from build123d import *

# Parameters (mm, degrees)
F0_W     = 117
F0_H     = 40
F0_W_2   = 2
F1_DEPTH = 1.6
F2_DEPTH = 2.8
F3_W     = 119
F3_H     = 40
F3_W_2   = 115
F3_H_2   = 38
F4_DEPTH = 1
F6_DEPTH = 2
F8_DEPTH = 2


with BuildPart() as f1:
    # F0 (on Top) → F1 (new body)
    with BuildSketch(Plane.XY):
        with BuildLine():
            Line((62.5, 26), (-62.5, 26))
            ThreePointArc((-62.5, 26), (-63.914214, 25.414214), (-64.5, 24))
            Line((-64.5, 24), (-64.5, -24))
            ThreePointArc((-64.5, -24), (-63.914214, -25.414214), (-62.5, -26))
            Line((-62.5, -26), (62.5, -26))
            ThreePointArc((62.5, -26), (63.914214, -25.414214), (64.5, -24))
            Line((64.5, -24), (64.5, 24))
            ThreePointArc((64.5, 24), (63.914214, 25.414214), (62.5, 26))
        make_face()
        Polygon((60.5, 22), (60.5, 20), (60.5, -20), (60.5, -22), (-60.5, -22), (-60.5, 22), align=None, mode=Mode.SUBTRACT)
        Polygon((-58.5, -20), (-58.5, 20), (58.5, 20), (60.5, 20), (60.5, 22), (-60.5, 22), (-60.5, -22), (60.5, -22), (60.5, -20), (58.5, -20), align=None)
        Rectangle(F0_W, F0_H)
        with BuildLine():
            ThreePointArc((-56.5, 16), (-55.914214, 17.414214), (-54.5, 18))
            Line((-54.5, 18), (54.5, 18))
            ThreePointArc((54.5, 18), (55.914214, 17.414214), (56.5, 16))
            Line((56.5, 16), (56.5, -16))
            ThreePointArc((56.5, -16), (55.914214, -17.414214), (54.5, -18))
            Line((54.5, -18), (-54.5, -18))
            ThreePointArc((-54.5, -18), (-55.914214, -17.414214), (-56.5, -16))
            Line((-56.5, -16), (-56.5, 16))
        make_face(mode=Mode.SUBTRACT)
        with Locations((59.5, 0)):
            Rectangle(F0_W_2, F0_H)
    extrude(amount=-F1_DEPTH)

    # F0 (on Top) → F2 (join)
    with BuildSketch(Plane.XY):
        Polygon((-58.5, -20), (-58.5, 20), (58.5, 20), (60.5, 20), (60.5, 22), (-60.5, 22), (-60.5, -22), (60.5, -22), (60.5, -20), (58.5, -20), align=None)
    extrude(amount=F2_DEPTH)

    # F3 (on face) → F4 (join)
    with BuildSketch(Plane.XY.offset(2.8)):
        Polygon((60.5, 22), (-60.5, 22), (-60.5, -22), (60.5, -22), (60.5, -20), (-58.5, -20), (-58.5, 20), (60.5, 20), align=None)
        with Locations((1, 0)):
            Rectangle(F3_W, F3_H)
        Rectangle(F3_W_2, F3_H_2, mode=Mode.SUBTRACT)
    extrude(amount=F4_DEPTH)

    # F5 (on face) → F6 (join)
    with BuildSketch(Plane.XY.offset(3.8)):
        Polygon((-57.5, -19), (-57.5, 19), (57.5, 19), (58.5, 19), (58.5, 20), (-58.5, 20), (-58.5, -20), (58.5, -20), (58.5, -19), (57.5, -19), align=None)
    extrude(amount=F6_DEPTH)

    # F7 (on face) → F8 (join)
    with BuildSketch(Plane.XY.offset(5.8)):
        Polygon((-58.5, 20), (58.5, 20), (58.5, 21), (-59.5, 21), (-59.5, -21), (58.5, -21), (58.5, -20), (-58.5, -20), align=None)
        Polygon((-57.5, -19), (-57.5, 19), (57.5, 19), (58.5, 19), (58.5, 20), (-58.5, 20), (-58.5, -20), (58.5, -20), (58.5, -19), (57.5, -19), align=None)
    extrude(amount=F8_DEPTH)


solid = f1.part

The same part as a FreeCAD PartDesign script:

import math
import FreeCAD as App
import Part
import Sketcher

V = App.Vector

doc = App.newDocument("Part")
body = doc.addObject("PartDesign::Body", "Body")

sketch1 = body.newObject("Sketcher::SketchObject", "Sketch")
sketch1.AttachmentSupport = (doc.getObject("XY_Plane"), [""])
sketch1.MapMode = "FlatFace"
sketch1.addGeometry([
    Part.LineSegment(V(62.5, 26, 0), V(-62.5, 26, 0)),
    Part.ArcOfCircle(Part.Circle(V(-62.500001, 24.000001, 0), V(0, 0, 1), 1.999999), math.radians(89.999957), math.radians(180.000043)),
    Part.LineSegment(V(-64.5, 24, 0), V(-64.5, -24, 0)),
    Part.ArcOfCircle(Part.Circle(V(-62.500001, -24.000001, 0), V(0, 0, 1), 1.999999), math.radians(179.999957), math.radians(270.000043)),
    Part.LineSegment(V(-62.5, -26, 0), V(62.5, -26, 0)),
    Part.ArcOfCircle(Part.Circle(V(62.500001, -24.000001, 0), V(0, 0, 1), 1.999999), math.radians(-90.000043), math.radians(0.000043)),
    Part.LineSegment(V(64.5, -24, 0), V(64.5, 24, 0)),
    Part.ArcOfCircle(Part.Circle(V(62.500001, 24.000001, 0), V(0, 0, 1), 1.999999), math.radians(-0.000043), math.radians(90.000043)),
    Part.LineSegment(V(-56.5, -16, 0), V(-56.5, 16, 0)),
    Part.ArcOfCircle(Part.Circle(V(-54.500001, 16.000001, 0), V(0, 0, 1), 1.999999), math.radians(89.999957), math.radians(180.000043)),
    Part.LineSegment(V(-54.5, 18, 0), V(54.5, 18, 0)),
    Part.ArcOfCircle(Part.Circle(V(54.500001, 16.000001, 0), V(0, 0, 1), 1.999999), math.radians(-0.000043), math.radians(90.000043)),
    Part.LineSegment(V(56.5, 16, 0), V(56.5, -16, 0)),
    Part.ArcOfCircle(Part.Circle(V(54.500001, -16.000001, 0), V(0, 0, 1), 1.999999), math.radians(-90.000043), math.radians(0.000043)),
    Part.LineSegment(V(54.5, -18, 0), V(-54.5, -18, 0)),
    Part.ArcOfCircle(Part.Circle(V(-54.500001, -16.000001, 0), V(0, 0, 1), 1.999999), math.radians(179.999957), math.radians(270.000043)),
], False)
sketch1.addConstraint([
    Sketcher.Constraint("Tangent", 0, 2, 1, 1),
    Sketcher.Constraint("Tangent", 1, 2, 2, 1),
    Sketcher.Constraint("Tangent", 2, 2, 3, 1),
    Sketcher.Constraint("Tangent", 3, 2, 4, 1),
    Sketcher.Constraint("Tangent", 4, 2, 5, 1),
    Sketcher.Constraint("Tangent", 5, 2, 6, 1),
    Sketcher.Constraint("Tangent", 6, 2, 7, 1),
    Sketcher.Constraint("Tangent", 7, 2, 0, 1),
    Sketcher.Constraint("Tangent", 8, 2, 9, 2),
    Sketcher.Constraint("Tangent", 9, 1, 10, 1),
    Sketcher.Constraint("Tangent", 10, 2, 11, 2),
    Sketcher.Constraint("Tangent", 11, 1, 12, 1),
    Sketcher.Constraint("Tangent", 12, 2, 13, 2),
    Sketcher.Constraint("Tangent", 13, 1, 14, 1),
    Sketcher.Constraint("Tangent", 14, 2, 15, 2),
    Sketcher.Constraint("Tangent", 15, 1, 8, 1),
    Sketcher.Constraint("Horizontal", 0),
    Sketcher.Constraint("Vertical", 2),
    Sketcher.Constraint("Horizontal", 4),
    Sketcher.Constraint("Vertical", 6),
    Sketcher.Constraint("Vertical", 8),
    Sketcher.Constraint("Horizontal", 10),
    Sketcher.Constraint("Vertical", 12),
    Sketcher.Constraint("Horizontal", 14),
    Sketcher.Constraint("Equal", 1, 3),
    Sketcher.Constraint("Equal", 3, 5),
    Sketcher.Constraint("Equal", 5, 7),
    Sketcher.Constraint("Equal", 7, 9),
    Sketcher.Constraint("Equal", 9, 11),
    Sketcher.Constraint("Equal", 11, 13),
    Sketcher.Constraint("Equal", 13, 15),
    Sketcher.Constraint("Symmetric", 1, 3, 5, 3, -1, 1),
    Sketcher.Constraint("Symmetric", 9, 3, 13, 3, -1, 1),
    Sketcher.Constraint("Radius", 1, 1.999999),
    Sketcher.Constraint("DistanceX", 0, 2, 0, 1, 125.0),
    Sketcher.Constraint("DistanceX", 10, 1, 10, 2, 109.0),
    Sketcher.Constraint("DistanceY", 2, 2, 2, 1, 48.0),
    Sketcher.Constraint("DistanceY", 8, 1, 8, 2, 32.0),
])
pad1 = body.newObject("PartDesign::Pad", "Pad")
pad1.Profile = sketch1
pad1.Length = 1.6
pad1.Reversed = True

sketch2 = body.newObject("Sketcher::SketchObject", "Sketch001")
sketch2.AttachmentSupport = (doc.getObject("XY_Plane"), [""])
sketch2.MapMode = "FlatFace"
sketch2.addGeometry([
    Part.LineSegment(V(-58.5, -20, 0), V(-58.5, 20, 0)),
    Part.LineSegment(V(-58.5, 20, 0), V(60.5, 20, 0)),
    Part.LineSegment(V(60.5, 20, 0), V(60.5, 22, 0)),
    Part.LineSegment(V(60.5, 22, 0), V(-60.5, 22, 0)),
    Part.LineSegment(V(-60.5, 22, 0), V(-60.5, -22, 0)),
    Part.LineSegment(V(-60.5, -22, 0), V(60.5, -22, 0)),
    Part.LineSegment(V(60.5, -22, 0), V(60.5, -20, 0)),
    Part.LineSegment(V(60.5, -20, 0), V(-58.5, -20, 0)),
], False)
sketch2.addConstraint([
    Sketcher.Constraint("Coincident", 0, 2, 1, 1),
    Sketcher.Constraint("Coincident", 1, 2, 2, 1),
    Sketcher.Constraint("Coincident", 2, 2, 3, 1),
    Sketcher.Constraint("Coincident", 3, 2, 4, 1),
    Sketcher.Constraint("Coincident", 4, 2, 5, 1),
    Sketcher.Constraint("Coincident", 5, 2, 6, 1),
    Sketcher.Constraint("Coincident", 6, 2, 7, 1),
    Sketcher.Constraint("Coincident", 7, 2, 0, 1),
    Sketcher.Constraint("Vertical", 0),
    Sketcher.Constraint("Horizontal", 1),
    Sketcher.Constraint("Vertical", 2),
    Sketcher.Constraint("Horizontal", 3),
    Sketcher.Constraint("Vertical", 4),
    Sketcher.Constraint("Horizontal", 5),
    Sketcher.Constraint("Vertical", 6),
    Sketcher.Constraint("Horizontal", 7),
    Sketcher.Constraint("Symmetric", 2, 2, 4, 2, -1, 1),
    Sketcher.Constraint("Symmetric", 1, 2, 6, 2, -1),
    Sketcher.Constraint("DistanceX", 1, 1, 1, 2, 119.0),
    Sketcher.Constraint("DistanceX", 3, 2, 3, 1, 121.0),
    Sketcher.Constraint("DistanceY", 0, 1, 0, 2, 40.0),
    Sketcher.Constraint("DistanceY", 2, 1, 2, 2, 2.0),
])
pad2 = body.newObject("PartDesign::Pad", "Pad001")
pad2.Profile = sketch2
pad2.Length = 2.8

sketch3 = body.newObject("Sketcher::SketchObject", "Sketch002")
sketch3.AttachmentSupport = (doc.getObject("XY_Plane"), [""])
sketch3.MapMode = "FlatFace"
sketch3.AttachmentOffset = App.Placement(V(0, 0, 2.8), App.Rotation())
sketch3.addGeometry([
    Part.LineSegment(V(60.5, 22, 0), V(-60.5, 22, 0)),
    Part.LineSegment(V(-60.5, 22, 0), V(-60.5, -22, 0)),
    Part.LineSegment(V(-60.5, -22, 0), V(60.5, -22, 0)),
    Part.LineSegment(V(60.5, -22, 0), V(60.5, 22, 0)),
    Part.LineSegment(V(57.5, -19, 0), V(-57.5, -19, 0)),
    Part.LineSegment(V(-57.5, -19, 0), V(-57.5, 19, 0)),
    Part.LineSegment(V(-57.5, 19, 0), V(57.5, 19, 0)),
    Part.LineSegment(V(57.5, 19, 0), V(57.5, -19, 0)),
], False)
sketch3.addConstraint([
    Sketcher.Constraint("Coincident", 0, 2, 1, 1),
    Sketcher.Constraint("Coincident", 1, 2, 2, 1),
    Sketcher.Constraint("Coincident", 2, 2, 3, 1),
    Sketcher.Constraint("Coincident", 3, 2, 0, 1),
    Sketcher.Constraint("Coincident", 4, 2, 5, 1),
    Sketcher.Constraint("Coincident", 5, 2, 6, 1),
    Sketcher.Constraint("Coincident", 6, 2, 7, 1),
    Sketcher.Constraint("Coincident", 7, 2, 4, 1),
    Sketcher.Constraint("Horizontal", 0),
    Sketcher.Constraint("Vertical", 1),
    Sketcher.Constraint("Horizontal", 2),
    Sketcher.Constraint("Vertical", 3),
    Sketcher.Constraint("Horizontal", 4),
    Sketcher.Constraint("Vertical", 5),
    Sketcher.Constraint("Horizontal", 6),
    Sketcher.Constraint("Vertical", 7),
    Sketcher.Constraint("Symmetric", 0, 2, 2, 2, -1, 1),
    Sketcher.Constraint("Symmetric", 4, 2, 6, 2, -1, 1),
    Sketcher.Constraint("DistanceX", 0, 2, 0, 1, 121.0),
    Sketcher.Constraint("DistanceX", 4, 2, 4, 1, 115.0),
    Sketcher.Constraint("DistanceY", 1, 2, 1, 1, 44.0),
    Sketcher.Constraint("DistanceY", 5, 1, 5, 2, 38.0),
])
pad3 = body.newObject("PartDesign::Pad", "Pad002")
pad3.Profile = sketch3
pad3.Length = 1

sketch4 = body.newObject("Sketcher::SketchObject", "Sketch003")
sketch4.AttachmentSupport = (doc.getObject("XY_Plane"), [""])
sketch4.MapMode = "FlatFace"
sketch4.AttachmentOffset = App.Placement(V(0, 0, 3.8), App.Rotation())
sketch4.addGeometry([
    Part.LineSegment(V(-57.5, -19, 0), V(-57.5, 19, 0)),
    Part.LineSegment(V(-57.5, 19, 0), V(58.5, 19, 0)),
    Part.LineSegment(V(58.5, 19, 0), V(58.5, 20, 0)),
    Part.LineSegment(V(58.5, 20, 0), V(-58.5, 20, 0)),
    Part.LineSegment(V(-58.5, 20, 0), V(-58.5, -20, 0)),
    Part.LineSegment(V(-58.5, -20, 0), V(58.5, -20, 0)),
    Part.LineSegment(V(58.5, -20, 0), V(58.5, -19, 0)),
    Part.LineSegment(V(58.5, -19, 0), V(-57.5, -19, 0)),
], False)
sketch4.addConstraint([
    Sketcher.Constraint("Coincident", 0, 2, 1, 1),
    Sketcher.Constraint("Coincident", 1, 2, 2, 1),
    Sketcher.Constraint("Coincident", 2, 2, 3, 1),
    Sketcher.Constraint("Coincident", 3, 2, 4, 1),
    Sketcher.Constraint("Coincident", 4, 2, 5, 1),
    Sketcher.Constraint("Coincident", 5, 2, 6, 1),
    Sketcher.Constraint("Coincident", 6, 2, 7, 1),
    Sketcher.Constraint("Coincident", 7, 2, 0, 1),
    Sketcher.Constraint("Vertical", 0),
    Sketcher.Constraint("Horizontal", 1),
    Sketcher.Constraint("Vertical", 2),
    Sketcher.Constraint("Horizontal", 3),
    Sketcher.Constraint("Vertical", 4),
    Sketcher.Constraint("Horizontal", 5),
    Sketcher.Constraint("Vertical", 6),
    Sketcher.Constraint("Horizontal", 7),
    Sketcher.Constraint("Symmetric", 2, 2, 4, 2, -1, 1),
    Sketcher.Constraint("Symmetric", 1, 2, 6, 2, -1),
    Sketcher.Constraint("DistanceX", 1, 1, 1, 2, 116.0),
    Sketcher.Constraint("DistanceX", 3, 2, 3, 1, 117.0),
    Sketcher.Constraint("DistanceY", 0, 1, 0, 2, 38.0),
    Sketcher.Constraint("DistanceY", 2, 1, 2, 2, 1.0),
])
pad4 = body.newObject("PartDesign::Pad", "Pad003")
pad4.Profile = sketch4
pad4.Length = 2

sketch5 = body.newObject("Sketcher::SketchObject", "Sketch004")
sketch5.AttachmentSupport = (doc.getObject("XY_Plane"), [""])
sketch5.MapMode = "FlatFace"
sketch5.AttachmentOffset = App.Placement(V(0, 0, 5.8), App.Rotation())
sketch5.addGeometry([
    Part.LineSegment(V(58.5, 21, 0), V(-59.5, 21, 0)),
    Part.LineSegment(V(-59.5, 21, 0), V(-59.5, -21, 0)),
    Part.LineSegment(V(-59.5, -21, 0), V(58.5, -21, 0)),
    Part.LineSegment(V(58.5, -21, 0), V(58.5, -19, 0)),
    Part.LineSegment(V(58.5, -19, 0), V(-57.5, -19, 0)),
    Part.LineSegment(V(-57.5, -19, 0), V(-57.5, 19, 0)),
    Part.LineSegment(V(-57.5, 19, 0), V(58.5, 19, 0)),
    Part.LineSegment(V(58.5, 19, 0), V(58.5, 21, 0)),
], False)
sketch5.addConstraint([
    Sketcher.Constraint("Coincident", 0, 2, 1, 1),
    Sketcher.Constraint("Coincident", 1, 2, 2, 1),
    Sketcher.Constraint("Coincident", 2, 2, 3, 1),
    Sketcher.Constraint("Coincident", 3, 2, 4, 1),
    Sketcher.Constraint("Coincident", 4, 2, 5, 1),
    Sketcher.Constraint("Coincident", 5, 2, 6, 1),
    Sketcher.Constraint("Coincident", 6, 2, 7, 1),
    Sketcher.Constraint("Coincident", 7, 2, 0, 1),
    Sketcher.Constraint("Horizontal", 0),
    Sketcher.Constraint("Vertical", 1),
    Sketcher.Constraint("Horizontal", 2),
    Sketcher.Constraint("Vertical", 3),
    Sketcher.Constraint("Horizontal", 4),
    Sketcher.Constraint("Vertical", 5),
    Sketcher.Constraint("Horizontal", 6),
    Sketcher.Constraint("Vertical", 7),
    Sketcher.Constraint("Symmetric", 3, 2, 6, 2, -1),
    Sketcher.Constraint("Equal", 3, 7),
    Sketcher.Constraint("DistanceX", 0, 2, 0, 1, 118.0),
    Sketcher.Constraint("DistanceX", 4, 2, 4, 1, 116.0),
    Sketcher.Constraint("DistanceY", 1, 2, 1, 1, 42.0),
    Sketcher.Constraint("DistanceY", 3, 1, 3, 2, 2.0),
    Sketcher.Constraint("DistanceX", 0, 2, -1, 1, 59.5),
])
pad5 = body.newObject("PartDesign::Pad", "Pad004")
pad5.Profile = sketch5
pad5.Length = 2

doc.recompute()
